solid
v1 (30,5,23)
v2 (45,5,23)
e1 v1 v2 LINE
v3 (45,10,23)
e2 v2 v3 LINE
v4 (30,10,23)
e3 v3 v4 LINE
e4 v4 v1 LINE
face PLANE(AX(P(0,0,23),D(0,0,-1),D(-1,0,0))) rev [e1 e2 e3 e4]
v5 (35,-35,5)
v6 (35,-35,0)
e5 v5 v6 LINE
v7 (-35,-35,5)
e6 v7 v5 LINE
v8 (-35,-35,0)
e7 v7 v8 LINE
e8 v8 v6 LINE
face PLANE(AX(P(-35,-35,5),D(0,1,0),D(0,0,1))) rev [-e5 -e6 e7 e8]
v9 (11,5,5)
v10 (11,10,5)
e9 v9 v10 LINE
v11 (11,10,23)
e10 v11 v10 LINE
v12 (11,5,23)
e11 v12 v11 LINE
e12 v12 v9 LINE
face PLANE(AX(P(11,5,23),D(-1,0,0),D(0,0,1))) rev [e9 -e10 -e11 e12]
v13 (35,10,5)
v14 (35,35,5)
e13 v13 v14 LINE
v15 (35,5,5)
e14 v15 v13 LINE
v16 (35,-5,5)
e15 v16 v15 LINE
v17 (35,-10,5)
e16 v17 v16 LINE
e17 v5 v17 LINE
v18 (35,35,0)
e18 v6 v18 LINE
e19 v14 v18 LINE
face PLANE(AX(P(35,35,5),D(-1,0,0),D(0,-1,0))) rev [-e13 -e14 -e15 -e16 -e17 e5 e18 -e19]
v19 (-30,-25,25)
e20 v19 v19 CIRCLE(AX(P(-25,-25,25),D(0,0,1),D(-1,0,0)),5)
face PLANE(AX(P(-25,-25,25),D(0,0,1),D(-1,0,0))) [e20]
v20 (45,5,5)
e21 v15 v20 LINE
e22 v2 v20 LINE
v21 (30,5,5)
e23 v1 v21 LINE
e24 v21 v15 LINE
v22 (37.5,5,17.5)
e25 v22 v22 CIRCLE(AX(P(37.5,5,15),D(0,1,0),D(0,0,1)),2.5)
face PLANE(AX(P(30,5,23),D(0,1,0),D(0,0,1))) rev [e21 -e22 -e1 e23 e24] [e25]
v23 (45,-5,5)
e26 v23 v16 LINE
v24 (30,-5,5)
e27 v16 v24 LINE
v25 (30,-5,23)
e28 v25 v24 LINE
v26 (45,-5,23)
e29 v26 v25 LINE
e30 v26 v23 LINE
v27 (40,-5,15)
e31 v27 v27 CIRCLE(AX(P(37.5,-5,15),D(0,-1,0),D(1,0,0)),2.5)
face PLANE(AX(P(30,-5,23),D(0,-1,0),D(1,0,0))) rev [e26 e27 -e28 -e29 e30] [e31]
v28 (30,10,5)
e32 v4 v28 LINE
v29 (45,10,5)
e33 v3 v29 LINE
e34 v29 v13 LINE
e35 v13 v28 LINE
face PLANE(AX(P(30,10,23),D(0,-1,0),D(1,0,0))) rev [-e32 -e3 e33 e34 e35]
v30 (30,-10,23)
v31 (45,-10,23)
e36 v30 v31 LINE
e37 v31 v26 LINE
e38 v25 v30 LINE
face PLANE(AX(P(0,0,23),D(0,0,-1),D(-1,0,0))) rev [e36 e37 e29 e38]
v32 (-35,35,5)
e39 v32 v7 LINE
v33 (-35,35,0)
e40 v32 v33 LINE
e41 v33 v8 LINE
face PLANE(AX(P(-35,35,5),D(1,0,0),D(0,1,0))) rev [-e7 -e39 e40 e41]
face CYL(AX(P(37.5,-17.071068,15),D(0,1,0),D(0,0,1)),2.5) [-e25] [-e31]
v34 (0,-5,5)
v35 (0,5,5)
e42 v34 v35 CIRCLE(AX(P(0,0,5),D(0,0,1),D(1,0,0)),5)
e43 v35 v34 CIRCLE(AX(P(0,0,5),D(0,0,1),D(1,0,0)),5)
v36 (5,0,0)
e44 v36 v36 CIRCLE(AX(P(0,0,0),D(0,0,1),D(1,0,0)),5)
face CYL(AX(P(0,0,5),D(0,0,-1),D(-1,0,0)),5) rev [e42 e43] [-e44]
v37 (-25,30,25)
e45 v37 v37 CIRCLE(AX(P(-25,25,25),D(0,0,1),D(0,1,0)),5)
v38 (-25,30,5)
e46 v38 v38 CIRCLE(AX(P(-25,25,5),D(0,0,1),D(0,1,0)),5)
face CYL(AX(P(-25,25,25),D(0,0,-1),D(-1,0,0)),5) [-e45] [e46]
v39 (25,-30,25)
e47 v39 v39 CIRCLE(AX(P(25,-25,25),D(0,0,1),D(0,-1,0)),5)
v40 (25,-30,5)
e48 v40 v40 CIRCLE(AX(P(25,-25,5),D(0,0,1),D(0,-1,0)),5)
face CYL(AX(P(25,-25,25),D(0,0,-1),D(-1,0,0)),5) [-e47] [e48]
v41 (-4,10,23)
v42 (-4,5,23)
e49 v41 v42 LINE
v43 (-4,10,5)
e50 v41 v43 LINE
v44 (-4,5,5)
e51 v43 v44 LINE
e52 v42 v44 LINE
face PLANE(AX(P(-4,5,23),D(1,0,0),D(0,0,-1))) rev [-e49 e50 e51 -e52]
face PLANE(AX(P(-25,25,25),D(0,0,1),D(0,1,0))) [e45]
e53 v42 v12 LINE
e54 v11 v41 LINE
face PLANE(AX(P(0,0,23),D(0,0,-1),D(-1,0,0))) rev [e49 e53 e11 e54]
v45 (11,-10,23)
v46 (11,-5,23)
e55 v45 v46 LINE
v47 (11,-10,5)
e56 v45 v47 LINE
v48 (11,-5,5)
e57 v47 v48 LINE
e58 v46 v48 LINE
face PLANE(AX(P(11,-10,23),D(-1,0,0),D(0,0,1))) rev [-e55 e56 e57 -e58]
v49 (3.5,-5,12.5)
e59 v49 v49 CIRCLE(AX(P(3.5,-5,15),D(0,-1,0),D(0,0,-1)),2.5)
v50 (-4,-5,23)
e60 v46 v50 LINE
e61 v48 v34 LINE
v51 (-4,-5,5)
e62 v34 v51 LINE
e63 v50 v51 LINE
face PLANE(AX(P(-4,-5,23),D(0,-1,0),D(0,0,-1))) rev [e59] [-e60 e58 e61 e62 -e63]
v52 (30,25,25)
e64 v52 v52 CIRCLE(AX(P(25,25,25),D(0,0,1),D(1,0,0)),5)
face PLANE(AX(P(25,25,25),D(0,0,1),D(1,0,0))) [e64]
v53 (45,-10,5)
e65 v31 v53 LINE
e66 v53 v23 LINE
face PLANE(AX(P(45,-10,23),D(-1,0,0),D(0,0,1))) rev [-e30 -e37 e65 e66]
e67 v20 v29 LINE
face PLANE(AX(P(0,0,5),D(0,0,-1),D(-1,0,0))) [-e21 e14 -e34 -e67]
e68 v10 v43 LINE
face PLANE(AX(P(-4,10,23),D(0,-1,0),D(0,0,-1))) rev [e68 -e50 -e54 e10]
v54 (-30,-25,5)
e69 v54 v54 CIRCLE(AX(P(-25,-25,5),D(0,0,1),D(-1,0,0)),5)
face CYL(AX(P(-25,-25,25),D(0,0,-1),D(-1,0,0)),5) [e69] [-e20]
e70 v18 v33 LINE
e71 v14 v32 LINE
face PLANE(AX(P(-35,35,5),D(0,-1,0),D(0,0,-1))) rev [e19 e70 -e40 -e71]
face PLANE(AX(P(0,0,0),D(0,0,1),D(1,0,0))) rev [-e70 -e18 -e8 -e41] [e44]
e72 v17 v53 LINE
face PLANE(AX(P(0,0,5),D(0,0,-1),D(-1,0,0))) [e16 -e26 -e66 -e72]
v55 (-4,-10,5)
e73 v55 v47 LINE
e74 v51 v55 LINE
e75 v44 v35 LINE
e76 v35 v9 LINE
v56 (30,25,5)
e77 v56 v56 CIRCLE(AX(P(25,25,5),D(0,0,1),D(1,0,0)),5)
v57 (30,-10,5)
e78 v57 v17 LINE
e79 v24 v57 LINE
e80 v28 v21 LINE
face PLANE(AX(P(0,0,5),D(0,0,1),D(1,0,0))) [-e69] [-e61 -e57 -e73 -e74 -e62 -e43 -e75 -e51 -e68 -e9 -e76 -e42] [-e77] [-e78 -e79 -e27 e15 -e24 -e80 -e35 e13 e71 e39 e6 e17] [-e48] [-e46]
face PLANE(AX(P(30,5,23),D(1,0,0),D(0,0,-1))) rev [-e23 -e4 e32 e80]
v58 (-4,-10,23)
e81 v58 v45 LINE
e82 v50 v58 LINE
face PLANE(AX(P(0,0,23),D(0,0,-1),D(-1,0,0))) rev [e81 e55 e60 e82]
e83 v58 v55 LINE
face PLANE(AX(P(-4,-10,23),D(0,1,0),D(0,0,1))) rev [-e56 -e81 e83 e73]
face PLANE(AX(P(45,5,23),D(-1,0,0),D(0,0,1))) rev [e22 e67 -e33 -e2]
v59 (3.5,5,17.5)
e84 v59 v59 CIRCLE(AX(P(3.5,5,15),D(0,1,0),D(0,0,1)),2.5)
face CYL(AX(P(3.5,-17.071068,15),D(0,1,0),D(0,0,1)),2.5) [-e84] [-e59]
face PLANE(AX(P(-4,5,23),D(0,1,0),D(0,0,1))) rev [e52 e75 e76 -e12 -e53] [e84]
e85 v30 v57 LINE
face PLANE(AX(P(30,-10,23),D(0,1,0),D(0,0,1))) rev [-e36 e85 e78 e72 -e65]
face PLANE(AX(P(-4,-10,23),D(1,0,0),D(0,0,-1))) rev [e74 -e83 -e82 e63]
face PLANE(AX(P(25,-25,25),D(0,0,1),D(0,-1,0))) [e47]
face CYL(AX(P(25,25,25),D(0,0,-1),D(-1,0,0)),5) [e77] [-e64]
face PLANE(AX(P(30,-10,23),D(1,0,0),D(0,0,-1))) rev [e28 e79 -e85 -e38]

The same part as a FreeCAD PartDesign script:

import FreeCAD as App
import Part
import Sketcher
from FreeCAD import Vector


def add_polygon(sketch, points):
    """Adds a closed chain of lines whose ends are joined by coincident constraints."""
    first, n = sketch.GeometryCount, len(points)
    for a, b in zip(points, points[1:] + points[:1]):
        sketch.addGeometry(Part.LineSegment(App.Vector(*a, 0), App.Vector(*b, 0)), False)
    for i in range(n):
        sketch.addConstraint(Sketcher.Constraint("Coincident", first + i, 2, first + (i + 1) % n, 1))

doc = App.newDocument("Part")
body = doc.addObject("PartDesign::Body", "Body")

sketch1 = body.newObject("Sketcher::SketchObject", "Sketch")
sketch1.AttachmentSupport = (doc.getObject("XY_Plane"), [""])
sketch1.MapMode = "FlatFace"
add_polygon(sketch1, [(-35, 35), (-35, -35), (35, -35), (35, 35)])
sketch1.addGeometry(Part.Circle(Vector(0, 0, 0), Vector(0, 0, 1), 5), False)
sketch1.addConstraint([
    Sketcher.Constraint("Vertical", 0),
    Sketcher.Constraint("Horizontal", 1),
    Sketcher.Constraint("Vertical", 2),
    Sketcher.Constraint("Horizontal", 3),
    Sketcher.Constraint("Coincident", 4, 3, -1, 1),
    Sketcher.Constraint("Symmetric", 0, 2, 2, 2, -1, 1),
    Sketcher.Constraint("Equal", 3, 0),
    Sketcher.Constraint("Diameter", 4, 10.0),
    Sketcher.Constraint("DistanceX", 1, 1, 1, 2, 70.0),
])
pad1 = body.newObject("PartDesign::Pad", "Pad")
pad1.Profile = sketch1
pad1.Length = 5

sketch2 = body.newObject("Sketcher::SketchObject", "Sketch001")
sketch2.AttachmentSupport = (doc.getObject("XY_Plane"), [""])
sketch2.MapMode = "FlatFace"
sketch2.AttachmentOffset = App.Placement(Vector(0, 0, 5), App.Rotation())
sketch2.addGeometry(Part.Circle(Vector(25, 25, 0), Vector(0, 0, 1), 5), False)
sketch2.addConstraint([
    Sketcher.Constraint("Diameter", 0, 10.0),
    Sketcher.Constraint("DistanceX", -1, 1, 0, 3, 25.0),
    Sketcher.Constraint("DistanceY", -1, 1, 0, 3, 25.0),
])
pad2 = body.newObject("PartDesign::Pad", "Pad001")
pad2.Profile = sketch2
pad2.Length = 20
doc.recompute()

polarpattern = body.newObject("PartDesign::PolarPattern", "PolarPattern")
polarpattern.Originals = [pad2]
polarpattern.Axis = (doc.getObject("Z_Axis"), [""])
polarpattern.Angle = 360
polarpattern.Occurrences = 4
body.Tip = polarpattern

sketch3 = body.newObject("Sketcher::SketchObject", "Sketch002")
sketch3.AttachmentSupport = (doc.getObject("XY_Plane"), [""])
sketch3.MapMode = "FlatFace"
sketch3.AttachmentOffset = App.Placement(Vector(0, 0, 5), App.Rotation())
add_polygon(sketch3, [(-4, -5), (-4, -10), (11, -10), (11, -5)])
add_polygon(sketch3, [(-4, 10), (-4, 5), (11, 5), (11, 10)])
add_polygon(sketch3, [(30, -5), (30, -10), (45, -10), (45, -5)])
add_polygon(sketch3, [(30, 10), (30, 5), (45, 5), (45, 10)])
sketch3.addConstraint([
    Sketcher.Constraint("Vertical", 0),
    Sketcher.Constraint("Horizontal", 1),
    Sketcher.Constraint("Vertical", 2),
    Sketcher.Constraint("Horizontal", 3),
    Sketcher.Constraint("Vertical", 4),
    Sketcher.Constraint("Horizontal", 5),
    Sketcher.Constraint("Vertical", 6),
    Sketcher.Constraint("Horizontal", 7),
    Sketcher.Constraint("Vertical", 8),
    Sketcher.Constraint("Horizontal", 9),
    Sketcher.Constraint("Vertical", 10),
    Sketcher.Constraint("Horizontal", 11),
    Sketcher.Constraint("Vertical", 12),
    Sketcher.Constraint("Horizontal", 13),
    Sketcher.Constraint("Vertical", 14),
    Sketcher.Constraint("Horizontal", 15),
    Sketcher.Constraint("Symmetric", 3, 2, 4, 2, -1),
    Sketcher.Constraint("Symmetric", 1, 2, 6, 2, -1),
    Sketcher.Constraint("Symmetric", 11, 2, 12, 2, -1),
    Sketcher.Constraint("Symmetric", 9, 2, 14, 2, -1),
    Sketcher.Constraint("Horizontal", 1, 2, 8, 2),
    Sketcher.Constraint("Horizontal", 3, 2, 10, 2),
    Sketcher.Constraint("Equal", 7, 9),
    Sketcher.Constraint("DistanceX", 1, 1, 1, 2, 15.0),
    Sketcher.Constraint("DistanceY", 0, 2, 0, 1, 5.0),
    Sketcher.Constraint("DistanceX", 0, 2, -1, 1, 4.0),
    Sketcher.Constraint("DistanceY", 0, 2, -1, 1, 10.0),
    Sketcher.Constraint("DistanceX", -1, 1, 8, 2, 30.0),
])
pad3 = body.newObject("PartDesign::Pad", "Pad002")
pad3.Profile = sketch3
pad3.Length = 18

sketch4 = body.newObject("Sketcher::SketchObject", "Sketch003")
sketch4.AttachmentSupport = (doc.getObject("XZ_Plane"), [""])
sketch4.MapMode = "FlatFace"
sketch4.AttachmentOffset = App.Placement(Vector(0, 0, -10), App.Rotation())
sketch4.addGeometry([
    Part.Circle(Vector(3.5, 15, 0), Vector(0, 0, 1), 2.5),
    Part.Circle(Vector(37.5, 15, 0), Vector(0, 0, 1), 2.5),
], False)
sketch4.addConstraint([
    Sketcher.Constraint("Equal", 0, 1),
    Sketcher.Constraint("Horizontal", 0, 3, 1, 3),
    Sketcher.Constraint("Diameter", 0, 5.0),
    Sketcher.Constraint("DistanceY", -1, 1, 0, 3, 15.0),
    Sketcher.Constraint("DistanceX", 0, 3, 1, 3, 34.0),
    Sketcher.Constraint("DistanceX", -1, 1, 0, 3, 3.5),
])
pad4 = body.newObject("PartDesign::Pad", "Pad003")
pad4.Profile = sketch4
pad4.Length = 20

doc.recompute()
